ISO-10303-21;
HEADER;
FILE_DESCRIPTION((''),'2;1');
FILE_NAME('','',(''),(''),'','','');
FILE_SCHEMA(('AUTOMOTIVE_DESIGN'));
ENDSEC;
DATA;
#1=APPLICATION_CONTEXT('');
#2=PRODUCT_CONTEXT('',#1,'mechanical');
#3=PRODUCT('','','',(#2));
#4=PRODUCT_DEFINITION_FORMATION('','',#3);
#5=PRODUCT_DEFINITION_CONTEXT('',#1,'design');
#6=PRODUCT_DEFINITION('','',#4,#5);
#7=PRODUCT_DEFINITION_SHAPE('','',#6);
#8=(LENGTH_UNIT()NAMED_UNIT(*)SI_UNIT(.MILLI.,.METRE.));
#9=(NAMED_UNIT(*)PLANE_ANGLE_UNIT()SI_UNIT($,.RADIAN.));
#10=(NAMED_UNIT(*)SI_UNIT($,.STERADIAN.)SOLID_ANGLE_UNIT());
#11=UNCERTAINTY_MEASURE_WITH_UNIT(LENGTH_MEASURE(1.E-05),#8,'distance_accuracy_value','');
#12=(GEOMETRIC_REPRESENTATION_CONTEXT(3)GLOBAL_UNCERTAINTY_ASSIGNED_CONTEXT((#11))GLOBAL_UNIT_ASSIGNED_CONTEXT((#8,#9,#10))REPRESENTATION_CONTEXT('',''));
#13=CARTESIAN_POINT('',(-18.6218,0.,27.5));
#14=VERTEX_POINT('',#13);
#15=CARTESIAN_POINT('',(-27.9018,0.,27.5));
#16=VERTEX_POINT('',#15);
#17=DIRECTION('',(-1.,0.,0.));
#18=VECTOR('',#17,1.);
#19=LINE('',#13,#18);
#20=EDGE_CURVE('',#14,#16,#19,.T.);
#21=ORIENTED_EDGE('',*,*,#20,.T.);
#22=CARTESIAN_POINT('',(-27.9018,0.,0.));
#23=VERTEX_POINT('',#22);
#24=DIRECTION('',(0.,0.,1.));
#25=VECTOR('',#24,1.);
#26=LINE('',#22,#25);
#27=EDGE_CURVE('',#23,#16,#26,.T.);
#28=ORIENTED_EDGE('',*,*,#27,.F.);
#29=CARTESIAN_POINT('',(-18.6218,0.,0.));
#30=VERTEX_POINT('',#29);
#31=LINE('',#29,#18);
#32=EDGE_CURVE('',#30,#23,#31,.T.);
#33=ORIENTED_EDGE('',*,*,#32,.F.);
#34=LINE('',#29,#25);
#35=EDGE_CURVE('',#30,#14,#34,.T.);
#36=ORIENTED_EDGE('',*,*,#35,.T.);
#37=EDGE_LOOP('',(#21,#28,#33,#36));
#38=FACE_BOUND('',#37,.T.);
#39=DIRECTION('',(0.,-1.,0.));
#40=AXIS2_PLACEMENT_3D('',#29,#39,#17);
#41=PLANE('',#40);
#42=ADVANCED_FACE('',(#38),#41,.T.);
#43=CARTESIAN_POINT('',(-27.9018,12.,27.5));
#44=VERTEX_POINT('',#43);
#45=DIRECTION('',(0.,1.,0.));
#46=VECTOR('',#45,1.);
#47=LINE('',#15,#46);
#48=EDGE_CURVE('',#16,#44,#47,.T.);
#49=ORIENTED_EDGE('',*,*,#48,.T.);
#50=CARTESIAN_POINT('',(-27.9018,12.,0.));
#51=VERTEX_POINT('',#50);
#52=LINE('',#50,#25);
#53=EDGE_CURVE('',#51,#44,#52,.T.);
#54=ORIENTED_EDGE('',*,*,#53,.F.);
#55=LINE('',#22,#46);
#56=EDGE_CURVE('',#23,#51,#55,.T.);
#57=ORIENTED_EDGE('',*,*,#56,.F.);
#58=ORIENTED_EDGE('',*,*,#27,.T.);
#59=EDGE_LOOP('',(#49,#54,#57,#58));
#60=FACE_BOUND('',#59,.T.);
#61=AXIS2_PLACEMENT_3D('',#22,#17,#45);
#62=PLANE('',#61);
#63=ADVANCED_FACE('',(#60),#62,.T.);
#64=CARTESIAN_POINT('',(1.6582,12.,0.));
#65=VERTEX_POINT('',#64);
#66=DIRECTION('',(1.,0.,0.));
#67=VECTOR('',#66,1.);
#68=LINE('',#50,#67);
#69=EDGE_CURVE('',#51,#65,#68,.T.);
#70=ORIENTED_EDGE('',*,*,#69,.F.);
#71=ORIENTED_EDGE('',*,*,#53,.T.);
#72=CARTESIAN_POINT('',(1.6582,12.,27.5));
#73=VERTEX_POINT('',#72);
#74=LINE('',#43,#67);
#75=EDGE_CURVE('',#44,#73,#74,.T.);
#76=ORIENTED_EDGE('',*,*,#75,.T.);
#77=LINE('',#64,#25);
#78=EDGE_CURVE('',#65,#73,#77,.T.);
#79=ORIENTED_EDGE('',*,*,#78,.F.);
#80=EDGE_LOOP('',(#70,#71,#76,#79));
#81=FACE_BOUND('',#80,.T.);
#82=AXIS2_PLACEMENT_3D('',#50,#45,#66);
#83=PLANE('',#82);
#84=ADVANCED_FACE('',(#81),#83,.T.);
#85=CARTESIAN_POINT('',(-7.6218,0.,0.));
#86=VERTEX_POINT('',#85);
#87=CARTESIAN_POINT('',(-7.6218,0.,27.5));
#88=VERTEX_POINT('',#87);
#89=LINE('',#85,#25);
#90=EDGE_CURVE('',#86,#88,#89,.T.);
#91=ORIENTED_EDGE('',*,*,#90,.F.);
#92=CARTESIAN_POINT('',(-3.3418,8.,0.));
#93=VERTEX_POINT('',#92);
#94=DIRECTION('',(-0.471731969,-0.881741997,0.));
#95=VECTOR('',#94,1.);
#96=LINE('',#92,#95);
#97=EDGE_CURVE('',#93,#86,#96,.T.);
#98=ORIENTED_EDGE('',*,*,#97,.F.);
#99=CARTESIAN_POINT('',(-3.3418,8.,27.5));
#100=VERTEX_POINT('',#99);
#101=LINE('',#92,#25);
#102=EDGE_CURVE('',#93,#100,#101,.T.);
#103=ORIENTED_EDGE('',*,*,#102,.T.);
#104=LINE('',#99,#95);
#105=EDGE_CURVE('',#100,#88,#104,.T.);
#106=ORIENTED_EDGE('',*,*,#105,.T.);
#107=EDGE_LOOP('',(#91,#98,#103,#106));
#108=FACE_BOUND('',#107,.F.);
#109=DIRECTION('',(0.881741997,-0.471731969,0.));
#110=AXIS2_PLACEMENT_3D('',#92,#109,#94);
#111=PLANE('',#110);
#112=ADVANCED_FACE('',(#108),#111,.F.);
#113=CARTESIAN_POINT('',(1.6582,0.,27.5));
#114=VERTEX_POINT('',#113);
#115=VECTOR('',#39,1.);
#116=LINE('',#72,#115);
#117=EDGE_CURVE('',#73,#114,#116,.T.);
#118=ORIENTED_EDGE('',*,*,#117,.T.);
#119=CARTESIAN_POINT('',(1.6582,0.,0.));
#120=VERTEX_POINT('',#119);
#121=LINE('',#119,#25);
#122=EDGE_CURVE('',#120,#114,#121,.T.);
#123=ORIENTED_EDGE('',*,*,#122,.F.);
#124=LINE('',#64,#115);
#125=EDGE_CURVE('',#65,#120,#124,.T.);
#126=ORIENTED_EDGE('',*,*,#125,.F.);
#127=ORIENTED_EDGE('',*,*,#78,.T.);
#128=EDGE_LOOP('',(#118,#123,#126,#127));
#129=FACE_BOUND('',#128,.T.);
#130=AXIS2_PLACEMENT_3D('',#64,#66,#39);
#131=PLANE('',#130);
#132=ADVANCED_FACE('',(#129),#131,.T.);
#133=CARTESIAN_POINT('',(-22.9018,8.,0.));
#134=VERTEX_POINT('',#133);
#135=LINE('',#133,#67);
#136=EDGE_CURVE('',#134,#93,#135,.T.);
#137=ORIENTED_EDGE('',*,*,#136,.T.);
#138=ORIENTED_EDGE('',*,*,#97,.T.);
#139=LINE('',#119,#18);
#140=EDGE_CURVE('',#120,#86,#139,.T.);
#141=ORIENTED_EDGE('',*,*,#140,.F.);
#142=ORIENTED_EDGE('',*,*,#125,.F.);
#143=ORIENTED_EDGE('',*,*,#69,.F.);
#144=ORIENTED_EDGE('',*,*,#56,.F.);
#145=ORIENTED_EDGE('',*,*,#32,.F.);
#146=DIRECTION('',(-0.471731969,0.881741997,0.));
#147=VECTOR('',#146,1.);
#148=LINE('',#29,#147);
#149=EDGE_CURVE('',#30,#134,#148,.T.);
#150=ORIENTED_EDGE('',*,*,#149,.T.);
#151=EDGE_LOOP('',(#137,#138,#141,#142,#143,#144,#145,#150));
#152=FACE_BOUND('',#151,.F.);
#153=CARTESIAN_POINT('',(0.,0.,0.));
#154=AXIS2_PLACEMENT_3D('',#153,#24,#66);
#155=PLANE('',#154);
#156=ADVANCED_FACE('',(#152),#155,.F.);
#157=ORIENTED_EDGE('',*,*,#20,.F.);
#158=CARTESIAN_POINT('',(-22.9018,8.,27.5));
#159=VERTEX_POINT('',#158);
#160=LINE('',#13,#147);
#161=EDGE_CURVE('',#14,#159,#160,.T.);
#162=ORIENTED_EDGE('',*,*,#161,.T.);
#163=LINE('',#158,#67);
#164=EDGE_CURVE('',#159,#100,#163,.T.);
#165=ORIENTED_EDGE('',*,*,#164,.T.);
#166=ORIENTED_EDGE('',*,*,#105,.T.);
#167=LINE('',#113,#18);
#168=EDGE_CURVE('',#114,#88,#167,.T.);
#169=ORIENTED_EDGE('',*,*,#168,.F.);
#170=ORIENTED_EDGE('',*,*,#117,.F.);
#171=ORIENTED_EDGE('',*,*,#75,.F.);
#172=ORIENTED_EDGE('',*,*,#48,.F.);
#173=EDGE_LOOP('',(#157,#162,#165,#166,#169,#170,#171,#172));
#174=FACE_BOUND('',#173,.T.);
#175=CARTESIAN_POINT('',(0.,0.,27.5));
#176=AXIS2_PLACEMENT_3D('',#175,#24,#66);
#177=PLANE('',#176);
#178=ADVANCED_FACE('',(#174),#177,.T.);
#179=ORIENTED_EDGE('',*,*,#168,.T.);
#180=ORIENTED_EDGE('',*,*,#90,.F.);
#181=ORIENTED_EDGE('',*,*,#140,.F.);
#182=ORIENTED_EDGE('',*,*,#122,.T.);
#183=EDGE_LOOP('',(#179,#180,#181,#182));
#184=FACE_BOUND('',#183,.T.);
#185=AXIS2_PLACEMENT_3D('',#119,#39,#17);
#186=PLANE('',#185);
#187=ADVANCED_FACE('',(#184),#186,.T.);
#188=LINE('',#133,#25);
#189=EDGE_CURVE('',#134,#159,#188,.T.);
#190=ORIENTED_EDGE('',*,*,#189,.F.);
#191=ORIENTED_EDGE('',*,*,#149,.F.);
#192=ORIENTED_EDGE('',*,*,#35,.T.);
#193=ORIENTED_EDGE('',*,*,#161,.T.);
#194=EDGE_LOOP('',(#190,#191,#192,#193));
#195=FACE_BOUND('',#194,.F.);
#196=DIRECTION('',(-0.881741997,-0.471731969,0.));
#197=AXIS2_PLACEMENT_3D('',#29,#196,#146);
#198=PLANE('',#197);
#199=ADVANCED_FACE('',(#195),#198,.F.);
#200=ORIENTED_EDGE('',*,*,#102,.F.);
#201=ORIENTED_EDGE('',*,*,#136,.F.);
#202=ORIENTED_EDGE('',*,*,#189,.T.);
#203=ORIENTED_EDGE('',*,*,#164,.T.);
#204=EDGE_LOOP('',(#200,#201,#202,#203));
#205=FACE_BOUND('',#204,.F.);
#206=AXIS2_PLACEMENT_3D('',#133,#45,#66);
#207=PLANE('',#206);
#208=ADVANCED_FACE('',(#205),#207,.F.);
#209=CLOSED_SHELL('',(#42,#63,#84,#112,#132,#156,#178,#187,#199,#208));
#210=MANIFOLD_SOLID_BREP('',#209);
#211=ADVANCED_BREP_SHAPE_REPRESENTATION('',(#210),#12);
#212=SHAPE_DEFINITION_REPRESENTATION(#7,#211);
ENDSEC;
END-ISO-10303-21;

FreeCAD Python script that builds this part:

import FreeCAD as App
import Part
import Sketcher

V = App.Vector


def add_polygon(sketch, points):
    """Adds a closed chain of lines whose ends are joined by coincident constraints."""
    first, n = sketch.GeometryCount, len(points)
    for a, b in zip(points, points[1:] + points[:1]):
        sketch.addGeometry(Part.LineSegment(App.Vector(*a, 0), App.Vector(*b, 0)), False)
    for i in range(n):
        sketch.addConstraint(Sketcher.Constraint("Coincident", first + i, 2, first + (i + 1) % n, 1))

doc = App.newDocument("Part")
body = doc.addObject("PartDesign::Body", "Body")

# Sketch on XY plane
sketch1 = body.newObject("Sketcher::SketchObject", "Sketch")
sketch1.AttachmentSupport = (doc.getObject("XY_Plane"), [""])
sketch1.MapMode = "FlatFace"
add_polygon(sketch1, [(-28, 0), (-19, 0), (-23, 8), (-3, 8), (-8, 0), (2, 0), (2, 12), (-28, 12)])  # lines 0-7
sketch1.addConstraint(Sketcher.Constraint("Horizontal", 0))
sketch1.addConstraint(Sketcher.Constraint("Horizontal", 2))
sketch1.addConstraint(Sketcher.Constraint("Horizontal", 4))
sketch1.addConstraint(Sketcher.Constraint("Vertical", 5))
sketch1.addConstraint(Sketcher.Constraint("Horizontal", 6))
sketch1.addConstraint(Sketcher.Constraint("Vertical", 7))
sketch1.addConstraint(Sketcher.Constraint("PointOnObject", 0, 2, -1))
sketch1.addConstraint(Sketcher.Constraint("PointOnObject", 3, 2, -1))
sketch1.addConstraint(Sketcher.Constraint("Equal", 0, 4))
sketch1.addConstraint(Sketcher.Constraint("Equal", 1, 3))
sketch1.addConstraint(Sketcher.Constraint("DistanceY", -1, 1, 1, 2, 8.0))
sketch1.addConstraint(Sketcher.Constraint("DistanceX", 0, 2, 3, 2, 11.0))
sketch1.addConstraint(Sketcher.Constraint("DistanceX", 2, 2, 4, 2, 5.0))
sketch1.addConstraint(Sketcher.Constraint("DistanceY", 2, 2, 5, 2, 4.0))
sketch1.addConstraint(Sketcher.Constraint("DistanceX", 6, 2, 6, 1, 29.56))
sketch1.addConstraint(Sketcher.Constraint("DistanceX", 0, 2, -1, 1, 18.6218))
pad1 = body.newObject("PartDesign::Pad", "Pad")
pad1.Profile = sketch1
pad1.Length = 27.5

doc.recompute()
